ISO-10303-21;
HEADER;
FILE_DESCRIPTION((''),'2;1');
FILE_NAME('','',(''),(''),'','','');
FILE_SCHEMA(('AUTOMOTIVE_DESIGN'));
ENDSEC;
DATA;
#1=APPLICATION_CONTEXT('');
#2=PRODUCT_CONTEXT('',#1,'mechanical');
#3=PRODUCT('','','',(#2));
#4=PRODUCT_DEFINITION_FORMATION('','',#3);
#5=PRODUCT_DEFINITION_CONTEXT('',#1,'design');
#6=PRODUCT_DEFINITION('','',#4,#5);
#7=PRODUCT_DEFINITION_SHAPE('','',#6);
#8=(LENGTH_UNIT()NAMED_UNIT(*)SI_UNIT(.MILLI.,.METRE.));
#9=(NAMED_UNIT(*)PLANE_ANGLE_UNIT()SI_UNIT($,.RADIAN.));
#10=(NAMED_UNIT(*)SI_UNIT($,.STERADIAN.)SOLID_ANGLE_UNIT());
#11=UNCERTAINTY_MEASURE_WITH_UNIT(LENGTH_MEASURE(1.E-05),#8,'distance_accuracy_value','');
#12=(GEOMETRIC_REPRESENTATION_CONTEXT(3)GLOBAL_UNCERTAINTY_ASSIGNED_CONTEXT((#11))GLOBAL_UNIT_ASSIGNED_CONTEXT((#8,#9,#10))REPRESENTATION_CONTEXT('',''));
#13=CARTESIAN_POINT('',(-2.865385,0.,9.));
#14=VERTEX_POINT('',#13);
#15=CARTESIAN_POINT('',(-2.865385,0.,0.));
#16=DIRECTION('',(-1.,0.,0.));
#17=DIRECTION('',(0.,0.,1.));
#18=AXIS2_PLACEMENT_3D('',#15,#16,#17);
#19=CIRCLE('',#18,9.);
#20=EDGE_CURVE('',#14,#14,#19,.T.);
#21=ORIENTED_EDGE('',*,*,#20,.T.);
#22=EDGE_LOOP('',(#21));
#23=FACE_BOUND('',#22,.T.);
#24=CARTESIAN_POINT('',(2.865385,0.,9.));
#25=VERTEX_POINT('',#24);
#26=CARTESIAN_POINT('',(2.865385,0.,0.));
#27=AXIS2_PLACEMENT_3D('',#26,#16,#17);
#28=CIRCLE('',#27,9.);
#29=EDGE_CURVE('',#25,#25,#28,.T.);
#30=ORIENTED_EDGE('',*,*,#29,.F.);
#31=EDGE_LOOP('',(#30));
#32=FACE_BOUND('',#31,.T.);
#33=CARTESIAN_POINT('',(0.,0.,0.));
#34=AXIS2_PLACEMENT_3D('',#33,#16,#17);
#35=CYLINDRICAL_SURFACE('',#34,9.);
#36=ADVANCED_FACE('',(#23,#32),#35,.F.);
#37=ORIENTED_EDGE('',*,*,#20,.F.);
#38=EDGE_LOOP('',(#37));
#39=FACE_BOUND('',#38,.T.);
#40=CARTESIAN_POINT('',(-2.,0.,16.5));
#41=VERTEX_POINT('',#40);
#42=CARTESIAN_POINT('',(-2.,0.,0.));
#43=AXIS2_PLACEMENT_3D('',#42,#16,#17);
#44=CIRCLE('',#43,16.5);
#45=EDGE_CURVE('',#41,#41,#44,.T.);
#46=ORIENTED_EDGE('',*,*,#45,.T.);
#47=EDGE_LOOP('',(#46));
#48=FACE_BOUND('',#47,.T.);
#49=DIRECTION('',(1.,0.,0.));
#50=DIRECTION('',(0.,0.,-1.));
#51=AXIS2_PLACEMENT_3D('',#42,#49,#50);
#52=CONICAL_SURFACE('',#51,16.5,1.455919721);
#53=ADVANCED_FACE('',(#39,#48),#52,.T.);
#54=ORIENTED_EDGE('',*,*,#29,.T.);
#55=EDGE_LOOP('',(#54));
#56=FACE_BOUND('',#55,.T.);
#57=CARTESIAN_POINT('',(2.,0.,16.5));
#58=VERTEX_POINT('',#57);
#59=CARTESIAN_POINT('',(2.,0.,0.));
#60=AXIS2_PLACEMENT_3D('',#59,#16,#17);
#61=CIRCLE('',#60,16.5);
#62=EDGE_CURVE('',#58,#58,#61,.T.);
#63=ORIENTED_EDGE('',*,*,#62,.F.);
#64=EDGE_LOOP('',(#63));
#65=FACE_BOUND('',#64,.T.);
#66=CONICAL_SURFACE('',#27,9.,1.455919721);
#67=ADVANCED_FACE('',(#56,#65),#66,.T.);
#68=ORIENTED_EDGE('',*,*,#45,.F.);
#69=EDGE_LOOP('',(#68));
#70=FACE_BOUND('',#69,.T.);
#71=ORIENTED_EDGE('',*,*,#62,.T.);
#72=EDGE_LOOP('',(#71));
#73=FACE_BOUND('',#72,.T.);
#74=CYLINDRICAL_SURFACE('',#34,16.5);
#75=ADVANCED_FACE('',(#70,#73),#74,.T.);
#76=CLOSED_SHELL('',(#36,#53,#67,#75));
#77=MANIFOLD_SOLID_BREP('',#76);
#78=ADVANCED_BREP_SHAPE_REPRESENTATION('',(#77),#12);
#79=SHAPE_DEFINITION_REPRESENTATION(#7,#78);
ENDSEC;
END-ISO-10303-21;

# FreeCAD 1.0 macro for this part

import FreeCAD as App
import Part
import Sketcher
from FreeCAD import Vector
Q = App.Units.Quantity

doc = App.newDocument("Part")
body = doc.addObject("PartDesign::Body", "Body")

# Sketch on XY plane
sketch1 = body.newObject("Sketcher::SketchObject", "Sketch")
sketch1.AttachmentSupport = (doc.getObject("XY_Plane"), [""])
sketch1.MapMode = "FlatFace"
sketch1.addGeometry([
    Part.LineSegment(Vector(2, 16.5, 0), Vector(-2, 16.5, 0)),
    Part.LineSegment(Vector(-2, 16.5, 0), Vector(-2.9, 9, 0)),
    Part.LineSegment(Vector(-2.9, 9, 0), Vector(2.9, 9, 0)),
    Part.LineSegment(Vector(2.9, 9, 0), Vector(2, 16.5, 0)),
], False)
sketch1.addConstraint([
    Sketcher.Constraint("Coincident", 0, 2, 1, 1),
    Sketcher.Constraint("Coincident", 1, 2, 2, 1),
    Sketcher.Constraint("Coincident", 2, 2, 3, 1),
    Sketcher.Constraint("Coincident", 3, 2, 0, 1),
    Sketcher.Constraint("Horizontal", 0),
    Sketcher.Constraint("Horizontal", 2),
    Sketcher.Constraint("Equal", 1, 3),
    Sketcher.Constraint("DistanceX", 0, 2, 0, 1, Q("4 mm")),
    Sketcher.Constraint("DistanceX", 0, 2, -1, 1, Q("2 mm")),
    Sketcher.Constraint("DistanceY", -1, 1, 1, 2, Q("9 mm")),
    Sketcher.Constraint("DistanceY", -1, 1, 0, 2, Q("16.5 mm")),
    Sketcher.Constraint("DistanceX", 2, 1, 2, 2, Q("5.730769 mm")),
])
revolution = body.newObject("PartDesign::Revolution", "Revolution")
revolution.Profile = sketch1
revolution.ReferenceAxis = (sketch1, ["H_Axis"])
revolution.Angle = 360

doc.recompute()
